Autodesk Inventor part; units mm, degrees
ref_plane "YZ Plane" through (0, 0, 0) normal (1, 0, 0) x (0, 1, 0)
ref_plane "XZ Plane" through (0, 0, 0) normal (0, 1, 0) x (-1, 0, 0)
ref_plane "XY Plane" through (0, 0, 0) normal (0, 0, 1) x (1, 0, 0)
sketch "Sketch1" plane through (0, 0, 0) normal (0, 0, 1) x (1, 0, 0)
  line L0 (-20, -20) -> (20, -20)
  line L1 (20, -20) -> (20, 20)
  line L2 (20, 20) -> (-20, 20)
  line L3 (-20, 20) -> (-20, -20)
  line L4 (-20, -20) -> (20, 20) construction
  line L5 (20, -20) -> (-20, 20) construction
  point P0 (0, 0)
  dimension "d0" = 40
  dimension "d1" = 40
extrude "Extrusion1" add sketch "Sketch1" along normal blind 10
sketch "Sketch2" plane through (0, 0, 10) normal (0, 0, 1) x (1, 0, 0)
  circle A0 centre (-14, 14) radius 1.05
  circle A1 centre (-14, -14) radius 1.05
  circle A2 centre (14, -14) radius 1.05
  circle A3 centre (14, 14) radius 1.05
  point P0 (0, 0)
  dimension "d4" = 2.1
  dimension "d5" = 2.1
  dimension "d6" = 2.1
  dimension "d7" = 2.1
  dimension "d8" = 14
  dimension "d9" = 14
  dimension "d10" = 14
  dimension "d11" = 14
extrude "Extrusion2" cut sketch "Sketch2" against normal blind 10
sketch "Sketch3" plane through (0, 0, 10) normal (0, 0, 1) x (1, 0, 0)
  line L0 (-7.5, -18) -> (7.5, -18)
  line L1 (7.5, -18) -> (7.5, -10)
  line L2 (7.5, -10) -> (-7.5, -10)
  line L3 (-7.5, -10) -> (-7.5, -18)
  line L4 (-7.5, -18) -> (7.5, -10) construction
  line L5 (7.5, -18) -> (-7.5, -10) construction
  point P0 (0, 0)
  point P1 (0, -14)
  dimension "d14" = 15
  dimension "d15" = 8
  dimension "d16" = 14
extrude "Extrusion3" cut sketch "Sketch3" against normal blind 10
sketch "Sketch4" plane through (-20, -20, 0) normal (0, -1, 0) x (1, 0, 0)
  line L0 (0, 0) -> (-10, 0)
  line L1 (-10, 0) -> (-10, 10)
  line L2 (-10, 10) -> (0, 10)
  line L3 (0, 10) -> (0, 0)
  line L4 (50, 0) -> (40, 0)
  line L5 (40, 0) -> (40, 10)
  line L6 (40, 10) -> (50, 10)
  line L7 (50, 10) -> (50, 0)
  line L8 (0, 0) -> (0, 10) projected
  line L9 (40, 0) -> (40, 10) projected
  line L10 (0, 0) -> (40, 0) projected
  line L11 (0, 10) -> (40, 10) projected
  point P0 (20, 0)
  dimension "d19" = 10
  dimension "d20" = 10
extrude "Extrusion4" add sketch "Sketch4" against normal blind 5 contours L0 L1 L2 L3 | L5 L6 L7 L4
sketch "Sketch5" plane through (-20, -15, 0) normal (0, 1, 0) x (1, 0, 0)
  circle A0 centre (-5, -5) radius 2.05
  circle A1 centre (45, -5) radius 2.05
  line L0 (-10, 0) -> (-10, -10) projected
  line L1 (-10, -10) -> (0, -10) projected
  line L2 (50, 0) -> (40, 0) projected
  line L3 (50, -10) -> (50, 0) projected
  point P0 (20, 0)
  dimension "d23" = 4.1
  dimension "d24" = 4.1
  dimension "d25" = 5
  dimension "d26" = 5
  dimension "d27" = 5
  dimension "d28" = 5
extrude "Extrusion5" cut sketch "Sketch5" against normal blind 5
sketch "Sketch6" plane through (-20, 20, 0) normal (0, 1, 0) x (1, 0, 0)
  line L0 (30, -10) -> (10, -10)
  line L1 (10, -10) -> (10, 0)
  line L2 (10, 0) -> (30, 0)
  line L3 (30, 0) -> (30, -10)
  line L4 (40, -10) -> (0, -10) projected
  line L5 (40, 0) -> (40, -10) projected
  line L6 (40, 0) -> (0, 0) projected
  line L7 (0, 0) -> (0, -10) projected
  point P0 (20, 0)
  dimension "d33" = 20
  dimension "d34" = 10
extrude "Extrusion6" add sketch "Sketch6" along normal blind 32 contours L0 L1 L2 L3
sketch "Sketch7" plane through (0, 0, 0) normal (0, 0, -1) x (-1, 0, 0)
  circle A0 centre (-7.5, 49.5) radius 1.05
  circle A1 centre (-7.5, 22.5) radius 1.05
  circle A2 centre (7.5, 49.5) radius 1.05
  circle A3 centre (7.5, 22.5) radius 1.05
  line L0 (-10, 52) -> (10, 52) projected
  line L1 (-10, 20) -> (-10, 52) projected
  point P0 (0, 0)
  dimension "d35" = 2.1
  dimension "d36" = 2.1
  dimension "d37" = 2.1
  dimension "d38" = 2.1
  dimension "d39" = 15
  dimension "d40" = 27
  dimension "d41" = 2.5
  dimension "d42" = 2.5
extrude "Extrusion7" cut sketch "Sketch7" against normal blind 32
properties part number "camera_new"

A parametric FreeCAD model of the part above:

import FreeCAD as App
import Part
import Sketcher
Q = App.Units.Quantity


def add_polygon(sketch, points):
    """Adds a closed chain of lines whose ends are joined by coincident constraints."""
    first, n = sketch.GeometryCount, len(points)
    for a, b in zip(points, points[1:] + points[:1]):
        sketch.addGeometry(Part.LineSegment(App.Vector(*a, 0), App.Vector(*b, 0)), False)
    for i in range(n):
        sketch.addConstraint(Sketcher.Constraint("Coincident", first + i, 2, first + (i + 1) % n, 1))

doc = App.newDocument("Part")
body = doc.addObject("PartDesign::Body", "Body")

# Sketch on XY plane
sketch1 = doc.addObject("Sketcher::SketchObject", "Sketch")
body.addObject(sketch1)
sketch1.AttachmentSupport = (doc.XY_Plane, [""])
sketch1.MapMode = "FlatFace"
add_polygon(sketch1, [(-20, 20), (-20, -20), (20, -20), (20, 20)])  # lines 0-3
sketch1.addConstraint([
    Sketcher.Constraint("Vertical", 0),
    Sketcher.Constraint("Horizontal", 1),
    Sketcher.Constraint("Vertical", 2),
    Sketcher.Constraint("Horizontal", 3),
    Sketcher.Constraint("Symmetric", 0, 2, 2, 2, -1, 1),
    Sketcher.Constraint("Equal", 3, 0),
    Sketcher.Constraint("DistanceX", 1, 1, 1, 2, Q("40 mm")),
])
pad1 = doc.addObject("PartDesign::Pad", "Pad")
body.addObject(pad1)
pad1.Profile = sketch1
pad1.Length = 10

# Sketch on XY plane
sketch2 = doc.addObject("Sketcher::SketchObject", "Sketch001")
body.addObject(sketch2)
sketch2.AttachmentSupport = (doc.XY_Plane, [""])
sketch2.MapMode = "FlatFace"
sketch2.AttachmentOffset = App.Placement(App.Vector(0, 0, 10), App.Rotation())
sketch2.addGeometry([
    Part.Circle(App.Vector(-14, 14, 0), App.Vector(0, 0, 1), 1.1),
    Part.Circle(App.Vector(-14, -14, 0), App.Vector(0, 0, 1), 1.1),
    Part.Circle(App.Vector(14, -14, 0), App.Vector(0, 0, 1), 1.1),
    Part.Circle(App.Vector(14, 14, 0), App.Vector(0, 0, 1), 1.1),
], False)
sketch2.addConstraint([
    Sketcher.Constraint("Equal", 0, 1),
    Sketcher.Constraint("Equal", 1, 2),
    Sketcher.Constraint("Equal", 2, 3),
    Sketcher.Constraint("Symmetric", 0, 3, 2, 3, -1, 1),
    Sketcher.Constraint("Symmetric", 1, 3, 3, 3, -1, 1),
    Sketcher.Constraint("Symmetric", 1, 3, 2, 3, -2),
    Sketcher.Constraint("Diameter", 0, Q("2.1 mm")),
    Sketcher.Constraint("DistanceX", 0, 3, -1, 1, Q("14 mm")),
    Sketcher.Constraint("DistanceY", -1, 1, 0, 3, Q("14 mm")),
])
pocket1 = doc.addObject("PartDesign::Pocket", "Pocket")
body.addObject(pocket1)
pocket1.Profile = sketch2
pocket1.Length = 10

# Sketch on XY plane
sketch3 = doc.addObject("Sketcher::SketchObject", "Sketch002")
body.addObject(sketch3)
sketch3.AttachmentSupport = (doc.XY_Plane, [""])
sketch3.MapMode = "FlatFace"
sketch3.AttachmentOffset = App.Placement(App.Vector(0, 0, 10), App.Rotation())
add_polygon(sketch3, [(-8, -10), (-8, -18), (8, -18), (8, -10)])  # lines 0-3
sketch3.addConstraint([
    Sketcher.Constraint("Vertical", 0),
    Sketcher.Constraint("Horizontal", 1),
    Sketcher.Constraint("Vertical", 2),
    Sketcher.Constraint("Horizontal", 3),
    Sketcher.Constraint("DistanceX", 1, 1, 1, 2, Q("15 mm")),
    Sketcher.Constraint("DistanceY", 0, 2, 0, 1, Q("8 mm")),
    Sketcher.Constraint("DistanceY", 0, 2, -1, 1, Q("18 mm")),
    Sketcher.Constraint("DistanceX", 0, 2, -1, 1, Q("7.5 mm")),
])
pocket2 = doc.addObject("PartDesign::Pocket", "Pocket001")
body.addObject(pocket2)
pocket2.Profile = sketch3
pocket2.Length = 10

# Sketch on XZ plane
sketch4 = doc.addObject("Sketcher::SketchObject", "Sketch003")
body.addObject(sketch4)
sketch4.AttachmentSupport = (doc.XZ_Plane, [""])
sketch4.MapMode = "FlatFace"
sketch4.AttachmentOffset = App.Placement(App.Vector(0, 0, 20), App.Rotation())
add_polygon(sketch4, [(-30, 0), (-20, 0), (-20, 10), (-30, 10)])  # lines 0-3
add_polygon(sketch4, [(20, 10), (20, 0), (30, 0), (30, 10)])  # lines 4-7
sketch4.addConstraint([
    Sketcher.Constraint("Horizontal", 0),
    Sketcher.Constraint("Vertical", 1),
    Sketcher.Constraint("Horizontal", 2),
    Sketcher.Constraint("Vertical", 3),
    Sketcher.Constraint("Vertical", 4),
    Sketcher.Constraint("Horizontal", 5),
    Sketcher.Constraint("Vertical", 6),
    Sketcher.Constraint("Horizontal", 7),
    Sketcher.Constraint("Symmetric", 0, 2, 4, 2, -1, 1),
    Sketcher.Constraint("Symmetric", 3, 2, 5, 2, -2),
    Sketcher.Constraint("Horizontal", 2, 2, 6, 2),
    Sketcher.Constraint("Equal", 7, 1),
    Sketcher.Constraint("DistanceX", 0, 1, 0, 2, Q("10 mm")),
    Sketcher.Constraint("DistanceX", 0, 2, -1, 1, Q("20 mm")),
])
pad2 = doc.addObject("PartDesign::Pad", "Pad001")
body.addObject(pad2)
pad2.Profile = sketch4
pad2.Length = 5
pad2.Reversed = True

# Sketch on XZ plane
sketch5 = doc.addObject("Sketcher::SketchObject", "Sketch004")
body.addObject(sketch5)
sketch5.AttachmentSupport = (doc.XZ_Plane, [""])
sketch5.MapMode = "FlatFace"
sketch5.AttachmentOffset = App.Placement(App.Vector(0, 0, 15), App.Rotation())
sketch5.addGeometry([
    Part.Circle(App.Vector(-25, 5, 0), App.Vector(0, 0, 1), 2),
    Part.Circle(App.Vector(25, 5, 0), App.Vector(0, 0, 1), 2),
], False)
sketch5.addConstraint([
    Sketcher.Constraint("Equal", 0, 1),
    Sketcher.Constraint("Symmetric", 0, 3, 1, 3, -2),
    Sketcher.Constraint("Diameter", 0, Q("4.1 mm")),
    Sketcher.Constraint("DistanceY", -1, 1, 0, 3, Q("5 mm")),
    Sketcher.Constraint("DistanceX", 0, 3, -1, 1, Q("25 mm")),
])
pocket3 = doc.addObject("PartDesign::Pocket", "Pocket002")
body.addObject(pocket3)
pocket3.Profile = sketch5
pocket3.Length = 5
pocket3.Reversed = True

# Sketch on XZ plane
sketch6 = doc.addObject("Sketcher::SketchObject", "Sketch005")
body.addObject(sketch6)
sketch6.AttachmentSupport = (doc.XZ_Plane, [""])
sketch6.MapMode = "FlatFace"
sketch6.AttachmentOffset = App.Placement(App.Vector(0, 0, -20), App.Rotation())
add_polygon(sketch6, [(-10, 10), (10, 10), (10, 0), (-10, 0)])  # lines 0-3
sketch6.addConstraint([
    Sketcher.Constraint("Horizontal", 0),
    Sketcher.Constraint("Vertical", 1),
    Sketcher.Constraint("Horizontal", 2),
    Sketcher.Constraint("Vertical", 3),
    Sketcher.Constraint("Symmetric", 1, 2, 2, 2, -1, 1),
    Sketcher.Constraint("DistanceX", 0, 1, 0, 2, Q("20 mm")),
    Sketcher.Constraint("DistanceY", 1, 2, 1, 1, Q("10 mm")),
])
pad3 = doc.addObject("PartDesign::Pad", "Pad002")
body.addObject(pad3)
pad3.Profile = sketch6
pad3.Length = 32
pad3.Reversed = True

# Sketch on XY plane
sketch7 = doc.addObject("Sketcher::SketchObject", "Sketch006")
body.addObject(sketch7)
sketch7.AttachmentSupport = (doc.XY_Plane, [""])
sketch7.MapMode = "FlatFace"
sketch7.addGeometry([
    Part.Circle(App.Vector(7.5, 49.5, 0), App.Vector(0, 0, 1), 1.1),
    Part.Circle(App.Vector(7.5, 22.5, 0), App.Vector(0, 0, 1), 1.1),
    Part.Circle(App.Vector(-7.5, 49.5, 0), App.Vector(0, 0, 1), 1.1),
    Part.Circle(App.Vector(-7.5, 22.5, 0), App.Vector(0, 0, 1), 1.1),
], False)
sketch7.addConstraint([
    Sketcher.Constraint("Equal", 0, 1),
    Sketcher.Constraint("Equal", 1, 2),
    Sketcher.Constraint("Equal", 2, 3),
    Sketcher.Constraint("Symmetric", 0, 3, 2, 3, -2),
    Sketcher.Constraint("Symmetric", 1, 3, 3, 3, -2),
    Sketcher.Constraint("Vertical", 0, 3, 1, 3),
    Sketcher.Constraint("Diameter", 0, Q("2.1 mm")),
    Sketcher.Constraint("DistanceY", 1, 3, 0, 3, Q("27 mm")),
    Sketcher.Constraint("DistanceX", 2, 3, 0, 3, Q("15 mm")),
    Sketcher.Constraint("DistanceY", -1, 1, 0, 3, Q("49.5 mm")),
])
pocket4 = doc.addObject("PartDesign::Pocket", "Pocket003")
body.addObject(pocket4)
pocket4.Profile = sketch7
pocket4.Length = 32
pocket4.Reversed = True

doc.recompute()
